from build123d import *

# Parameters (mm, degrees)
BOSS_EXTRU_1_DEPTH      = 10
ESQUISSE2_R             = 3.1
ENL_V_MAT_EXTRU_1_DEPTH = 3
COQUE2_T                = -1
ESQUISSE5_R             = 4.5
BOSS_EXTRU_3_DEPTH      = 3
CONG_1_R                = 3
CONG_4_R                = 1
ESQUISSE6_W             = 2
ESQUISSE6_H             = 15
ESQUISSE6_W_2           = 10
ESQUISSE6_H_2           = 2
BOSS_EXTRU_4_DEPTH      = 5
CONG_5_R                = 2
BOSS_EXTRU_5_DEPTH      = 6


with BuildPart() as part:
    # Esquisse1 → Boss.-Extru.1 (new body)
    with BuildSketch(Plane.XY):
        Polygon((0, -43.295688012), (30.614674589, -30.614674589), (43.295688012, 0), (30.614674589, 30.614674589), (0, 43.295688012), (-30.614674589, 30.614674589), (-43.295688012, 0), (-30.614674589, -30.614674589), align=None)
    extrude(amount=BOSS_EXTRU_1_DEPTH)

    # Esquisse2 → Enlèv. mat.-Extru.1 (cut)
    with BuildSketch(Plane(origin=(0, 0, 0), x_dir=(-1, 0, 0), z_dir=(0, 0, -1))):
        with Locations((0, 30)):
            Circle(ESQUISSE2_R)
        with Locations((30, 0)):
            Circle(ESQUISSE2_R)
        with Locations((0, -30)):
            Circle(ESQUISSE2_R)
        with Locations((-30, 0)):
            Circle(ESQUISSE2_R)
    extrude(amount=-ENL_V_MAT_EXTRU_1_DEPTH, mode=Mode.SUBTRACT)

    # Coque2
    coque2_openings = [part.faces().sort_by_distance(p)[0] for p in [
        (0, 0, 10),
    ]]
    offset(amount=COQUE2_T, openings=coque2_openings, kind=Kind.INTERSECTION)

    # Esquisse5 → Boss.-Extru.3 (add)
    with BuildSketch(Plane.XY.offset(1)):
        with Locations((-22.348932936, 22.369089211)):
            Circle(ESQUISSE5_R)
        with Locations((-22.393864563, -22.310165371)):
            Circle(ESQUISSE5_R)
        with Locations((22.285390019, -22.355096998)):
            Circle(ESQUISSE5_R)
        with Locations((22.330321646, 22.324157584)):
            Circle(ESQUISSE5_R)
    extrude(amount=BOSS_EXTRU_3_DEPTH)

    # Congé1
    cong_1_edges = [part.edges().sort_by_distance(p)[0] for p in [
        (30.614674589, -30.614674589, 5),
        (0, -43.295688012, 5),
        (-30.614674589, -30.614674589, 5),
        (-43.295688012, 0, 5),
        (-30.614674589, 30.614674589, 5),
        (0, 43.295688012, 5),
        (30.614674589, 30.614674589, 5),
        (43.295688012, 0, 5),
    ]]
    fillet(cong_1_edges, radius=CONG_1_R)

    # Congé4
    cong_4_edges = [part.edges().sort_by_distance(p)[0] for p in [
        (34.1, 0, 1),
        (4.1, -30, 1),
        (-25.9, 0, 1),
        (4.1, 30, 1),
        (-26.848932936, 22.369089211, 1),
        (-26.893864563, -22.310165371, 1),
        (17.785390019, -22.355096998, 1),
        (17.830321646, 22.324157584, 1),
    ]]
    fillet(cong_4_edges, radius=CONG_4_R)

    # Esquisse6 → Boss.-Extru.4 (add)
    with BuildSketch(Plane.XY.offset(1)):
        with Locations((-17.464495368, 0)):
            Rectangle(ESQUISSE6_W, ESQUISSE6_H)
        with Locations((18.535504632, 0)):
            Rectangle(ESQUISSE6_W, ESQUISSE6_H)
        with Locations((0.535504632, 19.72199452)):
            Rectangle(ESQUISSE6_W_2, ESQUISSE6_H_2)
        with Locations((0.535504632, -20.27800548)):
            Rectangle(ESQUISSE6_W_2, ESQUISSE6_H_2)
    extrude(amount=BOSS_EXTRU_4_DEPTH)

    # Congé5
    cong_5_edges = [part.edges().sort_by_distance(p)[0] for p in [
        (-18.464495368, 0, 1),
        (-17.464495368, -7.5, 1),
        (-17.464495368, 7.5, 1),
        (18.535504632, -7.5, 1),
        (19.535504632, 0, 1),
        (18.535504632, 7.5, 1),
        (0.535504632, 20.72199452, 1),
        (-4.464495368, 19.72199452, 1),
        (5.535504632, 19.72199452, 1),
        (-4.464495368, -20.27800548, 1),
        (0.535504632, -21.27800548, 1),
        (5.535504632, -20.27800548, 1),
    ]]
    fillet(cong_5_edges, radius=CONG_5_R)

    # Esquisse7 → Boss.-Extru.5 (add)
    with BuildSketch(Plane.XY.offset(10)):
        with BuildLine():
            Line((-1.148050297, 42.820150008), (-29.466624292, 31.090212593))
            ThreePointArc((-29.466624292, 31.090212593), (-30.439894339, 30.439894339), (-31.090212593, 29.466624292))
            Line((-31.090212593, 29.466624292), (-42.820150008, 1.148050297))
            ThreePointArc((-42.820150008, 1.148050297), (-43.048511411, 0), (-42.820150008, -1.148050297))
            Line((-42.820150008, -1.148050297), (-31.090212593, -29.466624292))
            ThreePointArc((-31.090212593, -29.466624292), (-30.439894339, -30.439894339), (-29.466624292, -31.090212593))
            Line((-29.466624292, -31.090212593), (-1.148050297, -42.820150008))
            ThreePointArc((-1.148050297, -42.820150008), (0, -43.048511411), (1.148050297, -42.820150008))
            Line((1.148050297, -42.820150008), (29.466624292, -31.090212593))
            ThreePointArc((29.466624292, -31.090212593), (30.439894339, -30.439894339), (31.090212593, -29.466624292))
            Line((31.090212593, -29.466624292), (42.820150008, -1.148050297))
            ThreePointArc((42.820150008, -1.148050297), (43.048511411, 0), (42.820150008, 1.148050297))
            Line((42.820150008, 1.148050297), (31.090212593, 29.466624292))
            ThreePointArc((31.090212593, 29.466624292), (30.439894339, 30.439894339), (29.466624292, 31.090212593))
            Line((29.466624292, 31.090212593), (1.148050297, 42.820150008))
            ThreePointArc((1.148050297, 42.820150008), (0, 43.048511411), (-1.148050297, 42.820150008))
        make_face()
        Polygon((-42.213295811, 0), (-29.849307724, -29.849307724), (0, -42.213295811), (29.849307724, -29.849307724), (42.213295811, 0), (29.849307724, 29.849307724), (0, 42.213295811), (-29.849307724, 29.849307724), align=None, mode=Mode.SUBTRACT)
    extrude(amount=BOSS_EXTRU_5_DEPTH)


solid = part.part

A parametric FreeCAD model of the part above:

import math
import FreeCAD as App
import Part
import Sketcher
from FreeCAD import Vector
Q = App.Units.Quantity


def edges_at(feature, points):
    """Names of the edges that pass closest to the given points."""
    edges = feature.Shape.Edges
    near = lambda p: min(range(len(edges)), key=lambda i: edges[i].distToShape(Part.Vertex(*p))[0])
    return sorted({f"Edge{near(p) + 1}" for p in points})


def faces_at(feature, points):
    """Names of the faces that lie closest to the given points."""
    faces = feature.Shape.Faces
    near = lambda p: min(range(len(faces)), key=lambda i: faces[i].distToShape(Part.Vertex(*p))[0])
    return sorted({f"Face{near(p) + 1}" for p in points})


def add_polygon(sketch, points):
    """Adds a closed chain of lines whose ends are joined by coincident constraints."""
    first, n = sketch.GeometryCount, len(points)
    for a, b in zip(points, points[1:] + points[:1]):
        sketch.addGeometry(Part.LineSegment(App.Vector(*a, 0), App.Vector(*b, 0)), False)
    for i in range(n):
        sketch.addConstraint(Sketcher.Constraint("Coincident", first + i, 2, first + (i + 1) % n, 1))

doc = App.newDocument("Part")
body = doc.addObject("PartDesign::Body", "Body")

# Sketch on XY plane
sketch1 = body.newObject("Sketcher::SketchObject", "Sketch")
sketch1.AttachmentSupport = (doc.getObject("XY_Plane"), [""])
sketch1.MapMode = "FlatFace"
add_polygon(sketch1, [(0, -43), (31, -31), (43, 0), (31, 31), (0, 43), (-31, 31), (-43, 0), (-31, -31)])  # lines 0-7
sketch1.addConstraint(Sketcher.Constraint("Symmetric", 0, 2, 4, 2, -1, 1))
sketch1.addConstraint(Sketcher.Constraint("Symmetric", 1, 2, 5, 2, -1, 1))
sketch1.addConstraint(Sketcher.Constraint("Symmetric", 2, 2, 6, 2, -1, 1))
sketch1.addConstraint(Sketcher.Constraint("Symmetric", 3, 2, 7, 2, -1, 1))
sketch1.addConstraint(Sketcher.Constraint("Symmetric", 2, 2, 4, 2, -2))
sketch1.addConstraint(Sketcher.Constraint("PointOnObject", 1, 2, -1))
sketch1.addConstraint(Sketcher.Constraint("PointOnObject", 3, 2, -2))
sketch1.addConstraint(Sketcher.Constraint("Perpendicular", 0, 2))
sketch1.addConstraint(Sketcher.Constraint("Equal", 0, 1))
sketch1.addConstraint(Sketcher.Constraint("Angle", 0, Q("22.5 deg")))
sketch1.addConstraint(Sketcher.Constraint("DistanceX", -1, 1, 1, 2, Q("43.295688 mm")))
pad1 = body.newObject("PartDesign::Pad", "Pad")
pad1.Profile = sketch1
pad1.Length = 10

# Sketch on XY plane
sketch2 = body.newObject("Sketcher::SketchObject", "Sketch001")
sketch2.AttachmentSupport = (doc.getObject("XY_Plane"), [""])
sketch2.MapMode = "FlatFace"
sketch2.addGeometry(Part.Circle(Vector(0, 30, 0), Vector(0, 0, 1), 3.1), False)
sketch2.addGeometry(Part.Circle(Vector(-30, 0, 0), Vector(0, 0, 1), 3.1), False)
sketch2.addGeometry(Part.Circle(Vector(0, -30, 0), Vector(0, 0, 1), 3.1), False)
sketch2.addGeometry(Part.Circle(Vector(30, 0, 0), Vector(0, 0, 1), 3.1), False)
sketch2.addConstraint(Sketcher.Constraint("Equal", 0, 1))
sketch2.addConstraint(Sketcher.Constraint("Equal", 1, 2))
sketch2.addConstraint(Sketcher.Constraint("Equal", 2, 3))
sketch2.addConstraint(Sketcher.Constraint("Symmetric", 0, 3, 2, 3, -1, 1))
sketch2.addConstraint(Sketcher.Constraint("Symmetric", 1, 3, 3, 3, -1, 1))
sketch2.addConstraint(Sketcher.Constraint("PointOnObject", 0, 3, -2))
sketch2.addConstraint(Sketcher.Constraint("PointOnObject", 1, 3, -1))
sketch2.addConstraint(Sketcher.Constraint("Diameter", 0, Q("6.2 mm")))
sketch2.addConstraint(Sketcher.Constraint("DistanceY", -1, 1, 0, 3, Q("30 mm")))
sketch2.addConstraint(Sketcher.Constraint("DistanceX", 1, 3, -1, 1, Q("30 mm")))
pocket1 = body.newObject("PartDesign::Pocket", "Pocket")
pocket1.Profile = sketch2
pocket1.Length = 3
pocket1.Reversed = True
doc.recompute()

thickness = body.newObject("PartDesign::Thickness", "Thickness")
thickness.Base = (pocket1, faces_at(pocket1, [(0, 0, 10)]))
thickness.Value = 1
thickness.Reversed = True
thickness.Join = "Intersection"

# Sketch on XY plane
sketch3 = body.newObject("Sketcher::SketchObject", "Sketch002")
sketch3.AttachmentSupport = (doc.getObject("XY_Plane"), [""])
sketch3.MapMode = "FlatFace"
sketch3.AttachmentOffset = App.Placement(Vector(0, 0, 1), App.Rotation())
sketch3.addGeometry(Part.Circle(Vector(-22.3, 22.4, 0), Vector(0, 0, 1), 4.5), False)
sketch3.addGeometry(Part.Circle(Vector(-22.4, -22.3, 0), Vector(0, 0, 1), 4.5), False)
sketch3.addGeometry(Part.Circle(Vector(22.3, -22.4, 0), Vector(0, 0, 1), 4.5), False)
sketch3.addGeometry(Part.Circle(Vector(22.3, 22.3, 0), Vector(0, 0, 1), 4.5), False)
sketch3.addConstraint(Sketcher.Constraint("Equal", 0, 1))
sketch3.addConstraint(Sketcher.Constraint("Equal", 1, 2))
sketch3.addConstraint(Sketcher.Constraint("Equal", 2, 3))
sketch3.addConstraint(Sketcher.Constraint("Diameter", 0, Q("9 mm")))
sketch3.addConstraint(Sketcher.Constraint("DistanceY", -1, 1, 0, 3, Q("22.369089 mm")))
sketch3.addConstraint(Sketcher.Constraint("DistanceX", -1, 1, 2, 3, Q("22.28539 mm")))
sketch3.addConstraint(Sketcher.Constraint("DistanceX", -1, 1, 3, 3, Q("22.330322 mm")))
sketch3.addConstraint(Sketcher.Constraint("DistanceX", 1, 3, 0, 3, Q("0.044932 mm")))
sketch3.addConstraint(Sketcher.Constraint("DistanceY", 2, 3, 1, 3, Q("0.044932 mm")))
sketch3.addConstraint(Sketcher.Constraint("DistanceY", 3, 3, 0, 3, Q("0.044932 mm")))
sketch3.addConstraint(Sketcher.Constraint("DistanceX", 0, 3, -1, 1, Q("22.348933 mm")))
sketch3.addConstraint(Sketcher.Constraint("DistanceY", 1, 3, -1, 1, Q("22.310165 mm")))
pad2 = body.newObject("PartDesign::Pad", "Pad001")
pad2.Profile = sketch3
pad2.Length = 3
doc.recompute()

fillet = body.newObject("PartDesign::Fillet", "Fillet")
fillet.Base = (pad2, edges_at(pad2, [
    (30.615, -30.615, 5),
    (0, -43.296, 5),
    (-30.615, -30.615, 5),
    (-43.296, 0, 5),
    (-30.615, 30.615, 5),
    (0, 43.296, 5),
    (30.615, 30.615, 5),
    (43.296, 0, 5),
]))
fillet.Radius = 3
doc.recompute()

fillet2 = body.newObject("PartDesign::Fillet", "Fillet001")
fillet2.Base = (fillet, edges_at(fillet, [
    (34.1, 0, 1),
    (4.1, -30, 1),
    (-25.9, 0, 1),
    (4.1, 30, 1),
    (-26.849, 22.369, 1),
    (-26.894, -22.31, 1),
    (17.785, -22.355, 1),
    (17.83, 22.324, 1),
]))
fillet2.Radius = 1

# Sketch on XY plane
sketch4 = body.newObject("Sketcher::SketchObject", "Sketch003")
sketch4.AttachmentSupport = (doc.getObject("XY_Plane"), [""])
sketch4.MapMode = "FlatFace"
sketch4.AttachmentOffset = App.Placement(Vector(0, 0, 1), App.Rotation())
add_polygon(sketch4, [(-18.5, 7.5), (-18.5, -7.5), (-16.5, -7.5), (-16.5, 7.5)])  # lines 0-3
add_polygon(sketch4, [(17.5, 7.5), (17.5, -7.5), (19.5, -7.5), (19.5, 7.5)])  # lines 4-7
add_polygon(sketch4, [(-4.5, 20.7), (-4.5, 18.7), (5.5, 18.7), (5.5, 20.7)])  # lines 8-11
add_polygon(sketch4, [(-4.5, -19.3), (-4.5, -21.3), (5.5, -21.3), (5.5, -19.3)])  # lines 12-15
sketch4.addConstraint(Sketcher.Constraint("Vertical", 0))
sketch4.addConstraint(Sketcher.Constraint("Horizontal", 1))
sketch4.addConstraint(Sketcher.Constraint("Vertical", 2))
sketch4.addConstraint(Sketcher.Constraint("Horizontal", 3))
sketch4.addConstraint(Sketcher.Constraint("Vertical", 4))
sketch4.addConstraint(Sketcher.Constraint("Horizontal", 5))
sketch4.addConstraint(Sketcher.Constraint("Vertical", 6))
sketch4.addConstraint(Sketcher.Constraint("Horizontal", 7))
sketch4.addConstraint(Sketcher.Constraint("Vertical", 8))
sketch4.addConstraint(Sketcher.Constraint("Horizontal", 9))
sketch4.addConstraint(Sketcher.Constraint("Vertical", 10))
sketch4.addConstraint(Sketcher.Constraint("Horizontal", 11))
sketch4.addConstraint(Sketcher.Constraint("Vertical", 12))
sketch4.addConstraint(Sketcher.Constraint("Horizontal", 13))
sketch4.addConstraint(Sketcher.Constraint("Vertical", 14))
sketch4.addConstraint(Sketcher.Constraint("Horizontal", 15))
sketch4.addConstraint(Sketcher.Constraint("Horizontal", 1, 2, 4, 2))
sketch4.addConstraint(Sketcher.Constraint("Horizontal", 3, 2, 6, 2))
sketch4.addConstraint(Sketcher.Constraint("Vertical", 11, 2, 12, 2))
sketch4.addConstraint(Sketcher.Constraint("Vertical", 10, 2, 13, 2))
sketch4.addConstraint(Sketcher.Constraint("Equal", 3, 5))
sketch4.addConstraint(Sketcher.Constraint("Equal", 7, 8))
sketch4.addConstraint(Sketcher.Constraint("Equal", 10, 12))
sketch4.addConstraint(Sketcher.Constraint("DistanceX", 1, 1, 1, 2, Q("2 mm")))
sketch4.addConstraint(Sketcher.Constraint("DistanceX", 9, 1, 9, 2, Q("10 mm")))
sketch4.addConstraint(Sketcher.Constraint("DistanceY", 0, 2, 0, 1, Q("15 mm")))
sketch4.addConstraint(Sketcher.Constraint("DistanceX", 1, 2, 4, 2, Q("34 mm")))
sketch4.addConstraint(Sketcher.Constraint("DistanceX", 2, 2, 8, 2, Q("12 mm")))
sketch4.addConstraint(Sketcher.Constraint("DistanceY", 0, 2, -1, 1, Q("7.5 mm")))
sketch4.addConstraint(Sketcher.Constraint("DistanceX", 0, 2, -1, 1, Q("18.464495 mm")))
sketch4.addConstraint(Sketcher.Constraint("DistanceY", -1, 1, 8, 2, Q("18.721995 mm")))
sketch4.addConstraint(Sketcher.Constraint("DistanceY", 12, 2, -1, 1, Q("21.278005 mm")))
pad3 = body.newObject("PartDesign::Pad", "Pad002")
pad3.Profile = sketch4
pad3.Length = 5
doc.recompute()

fillet3 = body.newObject("PartDesign::Fillet", "Fillet002")
fillet3.Base = (pad3, edges_at(pad3, [
    (-18.464, 0, 1),
    (-17.464, -7.5, 1),
    (-17.464, 7.5, 1),
    (18.536, -7.5, 1),
    (19.536, 0, 1),
    (18.536, 7.5, 1),
    (0.536, 20.722, 1),
    (-4.464, 19.722, 1),
    (5.536, 19.722, 1),
    (-4.464, -20.278, 1),
    (0.536, -21.278, 1),
    (5.536, -20.278, 1),
]))
fillet3.Radius = 2

# Sketch on XY plane
sketch5 = body.newObject("Sketcher::SketchObject", "Sketch004")
sketch5.AttachmentSupport = (doc.getObject("XY_Plane"), [""])
sketch5.MapMode = "FlatFace"
sketch5.AttachmentOffset = App.Placement(Vector(0, 0, 10), App.Rotation())
sketch5.addGeometry(Part.LineSegment(Vector(-1.1, 42.8, 0), Vector(-29.5, 31.1, 0)), False)  # 0
sketch5.addGeometry(Part.ArcOfCircle(Part.Circle(Vector(-28.3, 28.3, 0), Vector(0, 0, 1), 3), math.radians(112), math.radians(158)), False)  # 1
sketch5.addGeometry(Part.LineSegment(Vector(-31.1, 29.5, 0), Vector(-42.8, 1.1, 0)), False)  # 2
sketch5.addGeometry(Part.ArcOfCircle(Part.Circle(Vector(-40, 0, 0), Vector(0, 0, 1), 3), math.radians(157), math.radians(203)), False)  # 3
sketch5.addGeometry(Part.LineSegment(Vector(-42.8, -1.1, 0), Vector(-31.1, -29.5, 0)), False)  # 4
sketch5.addGeometry(Part.ArcOfCircle(Part.Circle(Vector(-28.3, -28.3, 0), Vector(0, 0, 1), 3), math.radians(-158), math.radians(-112)), False)  # 5
sketch5.addGeometry(Part.LineSegment(Vector(-29.5, -31.1, 0), Vector(-1.1, -42.8, 0)), False)  # 6
sketch5.addGeometry(Part.ArcOfCircle(Part.Circle(Vector(0, -40, 0), Vector(0, 0, 1), 3), math.radians(-113), math.radians(-67)), False)  # 7
sketch5.addGeometry(Part.LineSegment(Vector(1.1, -42.8, 0), Vector(29.5, -31.1, 0)), False)  # 8
sketch5.addGeometry(Part.ArcOfCircle(Part.Circle(Vector(28.3, -28.3, 0), Vector(0, 0, 1), 3), math.radians(-68), math.radians(-22)), False)  # 9
sketch5.addGeometry(Part.LineSegment(Vector(31.1, -29.5, 0), Vector(42.8, -1.1, 0)), False)  # 10
sketch5.addGeometry(Part.ArcOfCircle(Part.Circle(Vector(40, 0, 0), Vector(0, 0, 1), 3), math.radians(-23), math.radians(23)), False)  # 11
sketch5.addGeometry(Part.LineSegment(Vector(42.8, 1.1, 0), Vector(31.1, 29.5, 0)), False)  # 12
sketch5.addGeometry(Part.ArcOfCircle(Part.Circle(Vector(28.3, 28.3, 0), Vector(0, 0, 1), 3), math.radians(22), math.radians(68)), False)  # 13
sketch5.addGeometry(Part.LineSegment(Vector(29.5, 31.1, 0), Vector(1.1, 42.8, 0)), False)  # 14
sketch5.addGeometry(Part.ArcOfCircle(Part.Circle(Vector(0, 40, 0), Vector(0, 0, 1), 3), math.radians(67), math.radians(113)), False)  # 15
add_polygon(sketch5, [(-29.8, -29.8), (-42.2, 0), (-29.8, 29.8), (0, 42.2), (29.8, 29.8), (42.2, 0), (29.8, -29.8), (0, -42.2)])  # lines 16-23
sketch5.addConstraint(Sketcher.Constraint("Tangent", 0, 2, 1, 1))
sketch5.addConstraint(Sketcher.Constraint("Tangent", 1, 2, 2, 1))
sketch5.addConstraint(Sketcher.Constraint("Tangent", 2, 2, 3, 1))
sketch5.addConstraint(Sketcher.Constraint("Tangent", 3, 2, 4, 1))
sketch5.addConstraint(Sketcher.Constraint("Tangent", 4, 2, 5, 1))
sketch5.addConstraint(Sketcher.Constraint("Tangent", 5, 2, 6, 1))
sketch5.addConstraint(Sketcher.Constraint("Tangent", 6, 2, 7, 1))
sketch5.addConstraint(Sketcher.Constraint("Tangent", 7, 2, 8, 1))
sketch5.addConstraint(Sketcher.Constraint("Tangent", 8, 2, 9, 1))
sketch5.addConstraint(Sketcher.Constraint("Tangent", 9, 2, 10, 1))
sketch5.addConstraint(Sketcher.Constraint("Tangent", 10, 2, 11, 1))
sketch5.addConstraint(Sketcher.Constraint("Tangent", 11, 2, 12, 1))
sketch5.addConstraint(Sketcher.Constraint("Tangent", 12, 2, 13, 1))
sketch5.addConstraint(Sketcher.Constraint("Tangent", 13, 2, 14, 1))
sketch5.addConstraint(Sketcher.Constraint("Tangent", 14, 2, 15, 1))
sketch5.addConstraint(Sketcher.Constraint("Tangent", 15, 2, 0, 1))
sketch5.addConstraint(Sketcher.Constraint("Equal", 1, 3))
sketch5.addConstraint(Sketcher.Constraint("Equal", 3, 5))
sketch5.addConstraint(Sketcher.Constraint("Equal", 5, 7))
sketch5.addConstraint(Sketcher.Constraint("Equal", 7, 9))
sketch5.addConstraint(Sketcher.Constraint("Equal", 9, 11))
sketch5.addConstraint(Sketcher.Constraint("Equal", 11, 13))
sketch5.addConstraint(Sketcher.Constraint("Equal", 13, 15))
sketch5.addConstraint(Sketcher.Constraint("Symmetric", 1, 3, 9, 3, -1, 1))
sketch5.addConstraint(Sketcher.Constraint("Symmetric", 3, 3, 11, 3, -1, 1))
sketch5.addConstraint(Sketcher.Constraint("Symmetric", 5, 3, 13, 3, -1, 1))
sketch5.addConstraint(Sketcher.Constraint("Symmetric", 7, 3, 15, 3, -1, 1))
sketch5.addConstraint(Sketcher.Constraint("Symmetric", 16, 2, 20, 2, -1, 1))
sketch5.addConstraint(Sketcher.Constraint("Symmetric", 17, 2, 21, 2, -1, 1))
sketch5.addConstraint(Sketcher.Constraint("Symmetric", 18, 2, 22, 2, -1, 1))
sketch5.addConstraint(Sketcher.Constraint("Symmetric", 19, 2, 23, 2, -1, 1))
sketch5.addConstraint(Sketcher.Constraint("Symmetric", 5, 3, 9, 3, -2))
sketch5.addConstraint(Sketcher.Constraint("Symmetric", 17, 2, 19, 2, -2))
sketch5.addConstraint(Sketcher.Constraint("PointOnObject", 3, 3, -1))
sketch5.addConstraint(Sketcher.Constraint("PointOnObject", 7, 3, -2))
sketch5.addConstraint(Sketcher.Constraint("PointOnObject", 16, 2, -1))
sketch5.addConstraint(Sketcher.Constraint("PointOnObject", 18, 2, -2))
sketch5.addConstraint(Sketcher.Constraint("Perpendicular", 0, 4))
sketch5.addConstraint(Sketcher.Constraint("Parallel", 12, 16))
sketch5.addConstraint(Sketcher.Constraint("Perpendicular", 16, 18))
sketch5.addConstraint(Sketcher.Constraint("Equal", 0, 2))
sketch5.addConstraint(Sketcher.Constraint("Equal", 17, 18))
sketch5.addConstraint(Sketcher.Constraint("Radius", 1, Q("3 mm")))
sketch5.addConstraint(Sketcher.Constraint("Angle", 0, Q("-157.5 deg")))
sketch5.addConstraint(Sketcher.Constraint("DistanceY", 0, 2, 15, 3, Q("8.958299 mm")))
sketch5.addConstraint(Sketcher.Constraint("Distance", 16, Q("32.308658 mm")))
pad4 = body.newObject("PartDesign::Pad", "Pad003")
pad4.Profile = sketch5
pad4.Length = 6

doc.recompute()
